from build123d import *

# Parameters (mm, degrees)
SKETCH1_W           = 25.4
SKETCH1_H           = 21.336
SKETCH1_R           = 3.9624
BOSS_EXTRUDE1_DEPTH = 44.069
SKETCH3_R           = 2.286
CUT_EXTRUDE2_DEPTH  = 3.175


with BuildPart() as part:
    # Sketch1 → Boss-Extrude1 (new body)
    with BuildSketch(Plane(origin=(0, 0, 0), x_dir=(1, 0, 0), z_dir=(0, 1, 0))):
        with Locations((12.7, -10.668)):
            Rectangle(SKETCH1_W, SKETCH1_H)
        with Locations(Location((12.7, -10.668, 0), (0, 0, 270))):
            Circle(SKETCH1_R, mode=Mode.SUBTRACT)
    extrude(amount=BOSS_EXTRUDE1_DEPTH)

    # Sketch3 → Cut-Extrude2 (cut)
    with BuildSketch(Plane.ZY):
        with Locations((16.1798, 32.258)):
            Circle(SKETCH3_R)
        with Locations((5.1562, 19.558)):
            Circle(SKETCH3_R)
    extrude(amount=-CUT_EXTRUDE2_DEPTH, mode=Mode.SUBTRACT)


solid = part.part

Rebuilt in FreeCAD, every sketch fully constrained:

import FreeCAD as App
import Part
import Sketcher
from FreeCAD import Vector
Q = App.Units.Quantity

doc = App.newDocument("Part")
body = doc.addObject("PartDesign::Body", "Body")

# Sketch on XZ plane
sketch1 = body.newObject("Sketcher::SketchObject", "Sketch")
sketch1.AttachmentSupport = (doc.getObject("XZ_Plane"), [""])
sketch1.MapMode = "FlatFace"
sketch1.addGeometry(Part.LineSegment(Vector(0, 0, 0), Vector(0, 21.3, 0)), False)
sketch1.addGeometry(Part.LineSegment(Vector(0, 21.3, 0), Vector(25.4, 21.3, 0)), False)
sketch1.addGeometry(Part.LineSegment(Vector(25.4, 21.3, 0), Vector(25.4, 0, 0)), False)
sketch1.addGeometry(Part.LineSegment(Vector(25.4, 0, 0), Vector(0, 0, 0)), False)
sketch1.addGeometry(Part.Circle(Vector(12.7, 10.7, 0), Vector(0, 0, 1), 4), False)
sketch1.addConstraint(Sketcher.Constraint("Coincident", 0, 2, 1, 1))
sketch1.addConstraint(Sketcher.Constraint("Coincident", 1, 2, 2, 1))
sketch1.addConstraint(Sketcher.Constraint("Coincident", 2, 2, 3, 1))
sketch1.addConstraint(Sketcher.Constraint("Coincident", 3, 2, 0, 1))
sketch1.addConstraint(Sketcher.Constraint("Vertical", 0))
sketch1.addConstraint(Sketcher.Constraint("Horizontal", 1))
sketch1.addConstraint(Sketcher.Constraint("Vertical", 2))
sketch1.addConstraint(Sketcher.Constraint("Horizontal", 3))
sketch1.addConstraint(Sketcher.Constraint("Coincident", 3, 2, -1, 1))
sketch1.addConstraint(Sketcher.Constraint("DistanceX", 1, 1, 1, 2, Q("1 in")))
sketch1.addConstraint(Sketcher.Constraint("Diameter", 4, Q("0.312 in")))
sketch1.addConstraint(Sketcher.Constraint("DistanceY", 0, 1, 0, 2, Q("0.84 in")))
sketch1.addConstraint(Sketcher.Constraint("DistanceX", -1, 1, 4, 3, Q("0.5 in")))
sketch1.addConstraint(Sketcher.Constraint("DistanceY", -1, 1, 4, 3, Q("0.42 in")))
pad1 = body.newObject("PartDesign::Pad", "Pad")
pad1.Profile = sketch1
pad1.Length = Q("1.735 in")
pad1.Reversed = True

# Sketch on YZ plane
sketch2 = body.newObject("Sketcher::SketchObject", "Sketch001")
sketch2.AttachmentSupport = (doc.getObject("YZ_Plane"), [""])
sketch2.MapMode = "FlatFace"
sketch2.addGeometry(Part.Circle(Vector(32.3, 16.2, 0), Vector(0, 0, 1), 2.3), False)
sketch2.addGeometry(Part.Circle(Vector(19.6, 5.2, 0), Vector(0, 0, 1), 2.3), False)
sketch2.addConstraint(Sketcher.Constraint("Equal", 0, 1))
sketch2.addConstraint(Sketcher.Constraint("Diameter", 0, Q("0.18 in")))
sketch2.addConstraint(Sketcher.Constraint("DistanceX", 1, 3, 0, 3, Q("0.5 in")))
sketch2.addConstraint(Sketcher.Constraint("DistanceX", -1, 1, 0, 3, Q("1.27 in")))
sketch2.addConstraint(Sketcher.Constraint("DistanceY", -1, 1, 0, 3, Q("0.637 in")))
sketch2.addConstraint(Sketcher.Constraint("DistanceY", -1, 1, 1, 3, Q("0.203 in")))
pocket1 = body.newObject("PartDesign::Pocket", "Pocket")
pocket1.Profile = sketch2
pocket1.Length = Q("0.125 in")
pocket1.Reversed = True

doc.recompute()
